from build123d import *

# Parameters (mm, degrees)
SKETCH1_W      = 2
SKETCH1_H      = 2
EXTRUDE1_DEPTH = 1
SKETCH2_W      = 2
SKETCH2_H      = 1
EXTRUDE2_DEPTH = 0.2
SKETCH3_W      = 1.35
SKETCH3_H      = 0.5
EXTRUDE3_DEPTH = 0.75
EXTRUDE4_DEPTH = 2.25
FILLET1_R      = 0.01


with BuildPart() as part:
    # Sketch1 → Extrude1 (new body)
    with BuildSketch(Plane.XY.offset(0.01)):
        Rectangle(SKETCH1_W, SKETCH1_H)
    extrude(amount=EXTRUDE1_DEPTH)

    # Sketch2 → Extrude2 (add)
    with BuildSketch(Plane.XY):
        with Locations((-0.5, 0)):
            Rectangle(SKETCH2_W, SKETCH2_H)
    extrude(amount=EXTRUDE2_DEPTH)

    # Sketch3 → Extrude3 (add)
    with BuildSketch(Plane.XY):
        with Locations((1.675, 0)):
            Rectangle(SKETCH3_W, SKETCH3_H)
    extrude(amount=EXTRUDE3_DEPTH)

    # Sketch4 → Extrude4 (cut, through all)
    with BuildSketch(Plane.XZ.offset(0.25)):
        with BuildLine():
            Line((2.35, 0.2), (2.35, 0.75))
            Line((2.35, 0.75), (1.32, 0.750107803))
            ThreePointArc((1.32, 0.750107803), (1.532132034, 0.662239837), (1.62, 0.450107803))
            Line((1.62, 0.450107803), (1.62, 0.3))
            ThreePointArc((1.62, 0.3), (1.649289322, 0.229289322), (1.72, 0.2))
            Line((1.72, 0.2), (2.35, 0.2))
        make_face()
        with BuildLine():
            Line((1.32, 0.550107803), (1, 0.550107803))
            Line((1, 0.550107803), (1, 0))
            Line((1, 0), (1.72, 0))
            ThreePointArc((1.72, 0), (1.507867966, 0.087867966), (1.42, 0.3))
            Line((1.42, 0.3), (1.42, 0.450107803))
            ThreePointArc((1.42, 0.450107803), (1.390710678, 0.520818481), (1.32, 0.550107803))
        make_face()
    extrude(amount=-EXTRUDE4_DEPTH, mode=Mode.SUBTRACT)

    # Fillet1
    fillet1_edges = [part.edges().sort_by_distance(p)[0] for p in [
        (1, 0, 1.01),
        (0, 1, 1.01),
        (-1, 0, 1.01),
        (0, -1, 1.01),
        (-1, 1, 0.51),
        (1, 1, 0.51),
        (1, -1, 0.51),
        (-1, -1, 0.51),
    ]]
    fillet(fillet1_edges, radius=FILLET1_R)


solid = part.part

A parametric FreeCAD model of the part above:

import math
import FreeCAD as App
import Part
import Sketcher

V = App.Vector


def edges_at(feature, points):
    """Names of the edges that pass closest to the given points."""
    edges = feature.Shape.Edges
    near = lambda p: min(range(len(edges)), key=lambda i: edges[i].distToShape(Part.Vertex(*p))[0])
    return sorted({f"Edge{near(p) + 1}" for p in points})


def add_polygon(sketch, points):
    """Adds a closed chain of lines whose ends are joined by coincident constraints."""
    first, n = sketch.GeometryCount, len(points)
    for a, b in zip(points, points[1:] + points[:1]):
        sketch.addGeometry(Part.LineSegment(App.Vector(*a, 0), App.Vector(*b, 0)), False)
    for i in range(n):
        sketch.addConstraint(Sketcher.Constraint("Coincident", first + i, 2, first + (i + 1) % n, 1))

doc = App.newDocument("Part")
body = doc.addObject("PartDesign::Body", "Body")

# Sketch on XY plane
sketch1 = doc.addObject("Sketcher::SketchObject", "Sketch")
body.addObject(sketch1)
sketch1.AttachmentSupport = (doc.XY_Plane, [""])
sketch1.MapMode = "FlatFace"
sketch1.AttachmentOffset = App.Placement(V(0, 0, 0.01), App.Rotation())
add_polygon(sketch1, [(-1, 1), (-1, -1), (1, -1), (1, 1)])  # lines 0-3
sketch1.addConstraint([
    Sketcher.Constraint("Vertical", 0),
    Sketcher.Constraint("Horizontal", 1),
    Sketcher.Constraint("Vertical", 2),
    Sketcher.Constraint("Horizontal", 3),
    Sketcher.Constraint("Symmetric", 0, 2, 2, 2, -1, 1),
    Sketcher.Constraint("Equal", 3, 0),
    Sketcher.Constraint("DistanceX", 1, 1, 1, 2, 2.0),
])
pad1 = doc.addObject("PartDesign::Pad", "Pad")
body.addObject(pad1)
pad1.Profile = sketch1
pad1.Length = 1

# Sketch on XY plane
sketch2 = doc.addObject("Sketcher::SketchObject", "Sketch001")
body.addObject(sketch2)
sketch2.AttachmentSupport = (doc.XY_Plane, [""])
sketch2.MapMode = "FlatFace"
add_polygon(sketch2, [(-1.5, 0.5), (-1.5, -0.5), (0.5, -0.5), (0.5, 0.5)])  # lines 0-3
sketch2.addConstraint([
    Sketcher.Constraint("Vertical", 0),
    Sketcher.Constraint("Horizontal", 1),
    Sketcher.Constraint("Vertical", 2),
    Sketcher.Constraint("Horizontal", 3),
    Sketcher.Constraint("DistanceX", 1, 1, 1, 2, 2.0),
    Sketcher.Constraint("DistanceY", 0, 2, 0, 1, 1.0),
    Sketcher.Constraint("DistanceX", 0, 2, -1, 1, 1.5),
    Sketcher.Constraint("DistanceY", 0, 2, -1, 1, 0.5),
])
pad2 = doc.addObject("PartDesign::Pad", "Pad001")
body.addObject(pad2)
pad2.Profile = sketch2
pad2.Length = 0.2

# Sketch on XY plane
sketch3 = doc.addObject("Sketcher::SketchObject", "Sketch002")
body.addObject(sketch3)
sketch3.AttachmentSupport = (doc.XY_Plane, [""])
sketch3.MapMode = "FlatFace"
add_polygon(sketch3, [(1, 0.2), (1, -0.2), (2.4, -0.2), (2.4, 0.2)])  # lines 0-3
sketch3.addConstraint([
    Sketcher.Constraint("Vertical", 0),
    Sketcher.Constraint("Horizontal", 1),
    Sketcher.Constraint("Vertical", 2),
    Sketcher.Constraint("Horizontal", 3),
    Sketcher.Constraint("DistanceY", 0, 2, 0, 1, 0.5),
    Sketcher.Constraint("DistanceX", -1, 1, 0, 2, 1.0),
    Sketcher.Constraint("DistanceX", 1, 1, 1, 2, 1.35),
    Sketcher.Constraint("DistanceY", 0, 2, -1, 1, 0.25),
])
pad3 = doc.addObject("PartDesign::Pad", "Pad002")
body.addObject(pad3)
pad3.Profile = sketch3
pad3.Length = 0.75

# Sketch on XZ plane
sketch4 = doc.addObject("Sketcher::SketchObject", "Sketch003")
body.addObject(sketch4)
sketch4.AttachmentSupport = (doc.XZ_Plane, [""])
sketch4.MapMode = "FlatFace"
sketch4.AttachmentOffset = App.Placement(V(0, 0, 0.25), App.Rotation())
sketch4.addGeometry([
    Part.LineSegment(V(2.35, 0.2, 0), V(2.35, 0.75, 0)),  # 0
    Part.LineSegment(V(2.35, 0.75, 0), V(1.32, 0.75, 0)),  # 1
    Part.ArcOfCircle(Part.Circle(V(1.32, 0.45, 0), V(0, 0, 1), 0.3), math.radians(0), math.radians(90)),  # 2
    Part.LineSegment(V(1.62, 0.45, 0), V(1.62, 0.3, 0)),  # 3
    Part.ArcOfCircle(Part.Circle(V(1.72, 0.3, 0), V(0, 0, 1), 0.1), math.radians(180), math.radians(270)),  # 4
    Part.LineSegment(V(1.72, 0.2, 0), V(2.35, 0.2, 0)),  # 5
    Part.LineSegment(V(1.32, 0.55, 0), V(1, 0.55, 0)),  # 6
    Part.LineSegment(V(1, 0.55, 0), V(1, 0, 0)),  # 7
    Part.LineSegment(V(1, 0, 0), V(1.72, 0, 0)),  # 8
    Part.ArcOfCircle(Part.Circle(V(1.72, 0.3, 0), V(0, 0, 1), 0.3), math.radians(-180), math.radians(-90)),  # 9
    Part.LineSegment(V(1.42, 0.3, 0), V(1.42, 0.45, 0)),  # 10
    Part.ArcOfCircle(Part.Circle(V(1.32, 0.45, 0), V(0, 0, 1), 0.1), math.radians(0), math.radians(90)),  # 11
], False)
sketch4.addConstraint([
    Sketcher.Constraint("Coincident", 0, 2, 1, 1),
    Sketcher.Constraint("Coincident", 1, 2, 2, 2),
    Sketcher.Constraint("Tangent", 2, 1, 3, 1),
    Sketcher.Constraint("Tangent", 3, 2, 4, 1),
    Sketcher.Constraint("Tangent", 4, 2, 5, 1),
    Sketcher.Constraint("Coincident", 5, 2, 0, 1),
    Sketcher.Constraint("Coincident", 6, 2, 7, 1),
    Sketcher.Constraint("Coincident", 7, 2, 8, 1),
    Sketcher.Constraint("Tangent", 8, 2, 9, 2),
    Sketcher.Constraint("Tangent", 9, 1, 10, 1),
    Sketcher.Constraint("Tangent", 10, 2, 11, 1),
    Sketcher.Constraint("Tangent", 11, 2, 6, 1),
    Sketcher.Constraint("Vertical", 0),
    Sketcher.Constraint("Vertical", 3),
    Sketcher.Constraint("Horizontal", 5),
    Sketcher.Constraint("Horizontal", 6),
    Sketcher.Constraint("Vertical", 7),
    Sketcher.Constraint("Horizontal", 8),
    Sketcher.Constraint("Vertical", 10),
    Sketcher.Constraint("Coincident", 9, 3, 4, 3),
    Sketcher.Constraint("Coincident", 11, 3, 2, 3),
    Sketcher.Constraint("Equal", 2, 9),
    Sketcher.Constraint("PointOnObject", 7, 2, -1),
    Sketcher.Constraint("Vertical", 11, 3, 1, 2),
    Sketcher.Constraint("Radius", 2, 0.3),
    Sketcher.Constraint("Radius", 4, 0.1),
    Sketcher.Constraint("DistanceX", -1, 1, 6, 2, 1.0),
    Sketcher.Constraint("DistanceX", 5, 1, 5, 2, 0.63),
    Sketcher.Constraint("DistanceX", 6, 2, 6, 1, 0.32),
    Sketcher.Constraint("DistanceY", 0, 1, 0, 2, 0.55),
    Sketcher.Constraint("DistanceY", 3, 2, 3, 1, 0.150108),
])
pocket1 = doc.addObject("PartDesign::Pocket", "Pocket")
body.addObject(pocket1)
pocket1.Profile = sketch4
pocket1.Type = "ThroughAll"
doc.recompute()

fillet = doc.addObject("PartDesign::Fillet", "Fillet")
body.addObject(fillet)
fillet.Base = (pocket1, edges_at(pocket1, [
    (1, 0, 1.01),
    (0, 1, 1.01),
    (-1, 0, 1.01),
    (0, -1, 1.01),
    (-1, 1, 0.51),
    (1, 1, 0.51),
    (1, -1, 0.51),
    (-1, -1, 0.51),
]))
fillet.Radius = 0.01

doc.recompute()
